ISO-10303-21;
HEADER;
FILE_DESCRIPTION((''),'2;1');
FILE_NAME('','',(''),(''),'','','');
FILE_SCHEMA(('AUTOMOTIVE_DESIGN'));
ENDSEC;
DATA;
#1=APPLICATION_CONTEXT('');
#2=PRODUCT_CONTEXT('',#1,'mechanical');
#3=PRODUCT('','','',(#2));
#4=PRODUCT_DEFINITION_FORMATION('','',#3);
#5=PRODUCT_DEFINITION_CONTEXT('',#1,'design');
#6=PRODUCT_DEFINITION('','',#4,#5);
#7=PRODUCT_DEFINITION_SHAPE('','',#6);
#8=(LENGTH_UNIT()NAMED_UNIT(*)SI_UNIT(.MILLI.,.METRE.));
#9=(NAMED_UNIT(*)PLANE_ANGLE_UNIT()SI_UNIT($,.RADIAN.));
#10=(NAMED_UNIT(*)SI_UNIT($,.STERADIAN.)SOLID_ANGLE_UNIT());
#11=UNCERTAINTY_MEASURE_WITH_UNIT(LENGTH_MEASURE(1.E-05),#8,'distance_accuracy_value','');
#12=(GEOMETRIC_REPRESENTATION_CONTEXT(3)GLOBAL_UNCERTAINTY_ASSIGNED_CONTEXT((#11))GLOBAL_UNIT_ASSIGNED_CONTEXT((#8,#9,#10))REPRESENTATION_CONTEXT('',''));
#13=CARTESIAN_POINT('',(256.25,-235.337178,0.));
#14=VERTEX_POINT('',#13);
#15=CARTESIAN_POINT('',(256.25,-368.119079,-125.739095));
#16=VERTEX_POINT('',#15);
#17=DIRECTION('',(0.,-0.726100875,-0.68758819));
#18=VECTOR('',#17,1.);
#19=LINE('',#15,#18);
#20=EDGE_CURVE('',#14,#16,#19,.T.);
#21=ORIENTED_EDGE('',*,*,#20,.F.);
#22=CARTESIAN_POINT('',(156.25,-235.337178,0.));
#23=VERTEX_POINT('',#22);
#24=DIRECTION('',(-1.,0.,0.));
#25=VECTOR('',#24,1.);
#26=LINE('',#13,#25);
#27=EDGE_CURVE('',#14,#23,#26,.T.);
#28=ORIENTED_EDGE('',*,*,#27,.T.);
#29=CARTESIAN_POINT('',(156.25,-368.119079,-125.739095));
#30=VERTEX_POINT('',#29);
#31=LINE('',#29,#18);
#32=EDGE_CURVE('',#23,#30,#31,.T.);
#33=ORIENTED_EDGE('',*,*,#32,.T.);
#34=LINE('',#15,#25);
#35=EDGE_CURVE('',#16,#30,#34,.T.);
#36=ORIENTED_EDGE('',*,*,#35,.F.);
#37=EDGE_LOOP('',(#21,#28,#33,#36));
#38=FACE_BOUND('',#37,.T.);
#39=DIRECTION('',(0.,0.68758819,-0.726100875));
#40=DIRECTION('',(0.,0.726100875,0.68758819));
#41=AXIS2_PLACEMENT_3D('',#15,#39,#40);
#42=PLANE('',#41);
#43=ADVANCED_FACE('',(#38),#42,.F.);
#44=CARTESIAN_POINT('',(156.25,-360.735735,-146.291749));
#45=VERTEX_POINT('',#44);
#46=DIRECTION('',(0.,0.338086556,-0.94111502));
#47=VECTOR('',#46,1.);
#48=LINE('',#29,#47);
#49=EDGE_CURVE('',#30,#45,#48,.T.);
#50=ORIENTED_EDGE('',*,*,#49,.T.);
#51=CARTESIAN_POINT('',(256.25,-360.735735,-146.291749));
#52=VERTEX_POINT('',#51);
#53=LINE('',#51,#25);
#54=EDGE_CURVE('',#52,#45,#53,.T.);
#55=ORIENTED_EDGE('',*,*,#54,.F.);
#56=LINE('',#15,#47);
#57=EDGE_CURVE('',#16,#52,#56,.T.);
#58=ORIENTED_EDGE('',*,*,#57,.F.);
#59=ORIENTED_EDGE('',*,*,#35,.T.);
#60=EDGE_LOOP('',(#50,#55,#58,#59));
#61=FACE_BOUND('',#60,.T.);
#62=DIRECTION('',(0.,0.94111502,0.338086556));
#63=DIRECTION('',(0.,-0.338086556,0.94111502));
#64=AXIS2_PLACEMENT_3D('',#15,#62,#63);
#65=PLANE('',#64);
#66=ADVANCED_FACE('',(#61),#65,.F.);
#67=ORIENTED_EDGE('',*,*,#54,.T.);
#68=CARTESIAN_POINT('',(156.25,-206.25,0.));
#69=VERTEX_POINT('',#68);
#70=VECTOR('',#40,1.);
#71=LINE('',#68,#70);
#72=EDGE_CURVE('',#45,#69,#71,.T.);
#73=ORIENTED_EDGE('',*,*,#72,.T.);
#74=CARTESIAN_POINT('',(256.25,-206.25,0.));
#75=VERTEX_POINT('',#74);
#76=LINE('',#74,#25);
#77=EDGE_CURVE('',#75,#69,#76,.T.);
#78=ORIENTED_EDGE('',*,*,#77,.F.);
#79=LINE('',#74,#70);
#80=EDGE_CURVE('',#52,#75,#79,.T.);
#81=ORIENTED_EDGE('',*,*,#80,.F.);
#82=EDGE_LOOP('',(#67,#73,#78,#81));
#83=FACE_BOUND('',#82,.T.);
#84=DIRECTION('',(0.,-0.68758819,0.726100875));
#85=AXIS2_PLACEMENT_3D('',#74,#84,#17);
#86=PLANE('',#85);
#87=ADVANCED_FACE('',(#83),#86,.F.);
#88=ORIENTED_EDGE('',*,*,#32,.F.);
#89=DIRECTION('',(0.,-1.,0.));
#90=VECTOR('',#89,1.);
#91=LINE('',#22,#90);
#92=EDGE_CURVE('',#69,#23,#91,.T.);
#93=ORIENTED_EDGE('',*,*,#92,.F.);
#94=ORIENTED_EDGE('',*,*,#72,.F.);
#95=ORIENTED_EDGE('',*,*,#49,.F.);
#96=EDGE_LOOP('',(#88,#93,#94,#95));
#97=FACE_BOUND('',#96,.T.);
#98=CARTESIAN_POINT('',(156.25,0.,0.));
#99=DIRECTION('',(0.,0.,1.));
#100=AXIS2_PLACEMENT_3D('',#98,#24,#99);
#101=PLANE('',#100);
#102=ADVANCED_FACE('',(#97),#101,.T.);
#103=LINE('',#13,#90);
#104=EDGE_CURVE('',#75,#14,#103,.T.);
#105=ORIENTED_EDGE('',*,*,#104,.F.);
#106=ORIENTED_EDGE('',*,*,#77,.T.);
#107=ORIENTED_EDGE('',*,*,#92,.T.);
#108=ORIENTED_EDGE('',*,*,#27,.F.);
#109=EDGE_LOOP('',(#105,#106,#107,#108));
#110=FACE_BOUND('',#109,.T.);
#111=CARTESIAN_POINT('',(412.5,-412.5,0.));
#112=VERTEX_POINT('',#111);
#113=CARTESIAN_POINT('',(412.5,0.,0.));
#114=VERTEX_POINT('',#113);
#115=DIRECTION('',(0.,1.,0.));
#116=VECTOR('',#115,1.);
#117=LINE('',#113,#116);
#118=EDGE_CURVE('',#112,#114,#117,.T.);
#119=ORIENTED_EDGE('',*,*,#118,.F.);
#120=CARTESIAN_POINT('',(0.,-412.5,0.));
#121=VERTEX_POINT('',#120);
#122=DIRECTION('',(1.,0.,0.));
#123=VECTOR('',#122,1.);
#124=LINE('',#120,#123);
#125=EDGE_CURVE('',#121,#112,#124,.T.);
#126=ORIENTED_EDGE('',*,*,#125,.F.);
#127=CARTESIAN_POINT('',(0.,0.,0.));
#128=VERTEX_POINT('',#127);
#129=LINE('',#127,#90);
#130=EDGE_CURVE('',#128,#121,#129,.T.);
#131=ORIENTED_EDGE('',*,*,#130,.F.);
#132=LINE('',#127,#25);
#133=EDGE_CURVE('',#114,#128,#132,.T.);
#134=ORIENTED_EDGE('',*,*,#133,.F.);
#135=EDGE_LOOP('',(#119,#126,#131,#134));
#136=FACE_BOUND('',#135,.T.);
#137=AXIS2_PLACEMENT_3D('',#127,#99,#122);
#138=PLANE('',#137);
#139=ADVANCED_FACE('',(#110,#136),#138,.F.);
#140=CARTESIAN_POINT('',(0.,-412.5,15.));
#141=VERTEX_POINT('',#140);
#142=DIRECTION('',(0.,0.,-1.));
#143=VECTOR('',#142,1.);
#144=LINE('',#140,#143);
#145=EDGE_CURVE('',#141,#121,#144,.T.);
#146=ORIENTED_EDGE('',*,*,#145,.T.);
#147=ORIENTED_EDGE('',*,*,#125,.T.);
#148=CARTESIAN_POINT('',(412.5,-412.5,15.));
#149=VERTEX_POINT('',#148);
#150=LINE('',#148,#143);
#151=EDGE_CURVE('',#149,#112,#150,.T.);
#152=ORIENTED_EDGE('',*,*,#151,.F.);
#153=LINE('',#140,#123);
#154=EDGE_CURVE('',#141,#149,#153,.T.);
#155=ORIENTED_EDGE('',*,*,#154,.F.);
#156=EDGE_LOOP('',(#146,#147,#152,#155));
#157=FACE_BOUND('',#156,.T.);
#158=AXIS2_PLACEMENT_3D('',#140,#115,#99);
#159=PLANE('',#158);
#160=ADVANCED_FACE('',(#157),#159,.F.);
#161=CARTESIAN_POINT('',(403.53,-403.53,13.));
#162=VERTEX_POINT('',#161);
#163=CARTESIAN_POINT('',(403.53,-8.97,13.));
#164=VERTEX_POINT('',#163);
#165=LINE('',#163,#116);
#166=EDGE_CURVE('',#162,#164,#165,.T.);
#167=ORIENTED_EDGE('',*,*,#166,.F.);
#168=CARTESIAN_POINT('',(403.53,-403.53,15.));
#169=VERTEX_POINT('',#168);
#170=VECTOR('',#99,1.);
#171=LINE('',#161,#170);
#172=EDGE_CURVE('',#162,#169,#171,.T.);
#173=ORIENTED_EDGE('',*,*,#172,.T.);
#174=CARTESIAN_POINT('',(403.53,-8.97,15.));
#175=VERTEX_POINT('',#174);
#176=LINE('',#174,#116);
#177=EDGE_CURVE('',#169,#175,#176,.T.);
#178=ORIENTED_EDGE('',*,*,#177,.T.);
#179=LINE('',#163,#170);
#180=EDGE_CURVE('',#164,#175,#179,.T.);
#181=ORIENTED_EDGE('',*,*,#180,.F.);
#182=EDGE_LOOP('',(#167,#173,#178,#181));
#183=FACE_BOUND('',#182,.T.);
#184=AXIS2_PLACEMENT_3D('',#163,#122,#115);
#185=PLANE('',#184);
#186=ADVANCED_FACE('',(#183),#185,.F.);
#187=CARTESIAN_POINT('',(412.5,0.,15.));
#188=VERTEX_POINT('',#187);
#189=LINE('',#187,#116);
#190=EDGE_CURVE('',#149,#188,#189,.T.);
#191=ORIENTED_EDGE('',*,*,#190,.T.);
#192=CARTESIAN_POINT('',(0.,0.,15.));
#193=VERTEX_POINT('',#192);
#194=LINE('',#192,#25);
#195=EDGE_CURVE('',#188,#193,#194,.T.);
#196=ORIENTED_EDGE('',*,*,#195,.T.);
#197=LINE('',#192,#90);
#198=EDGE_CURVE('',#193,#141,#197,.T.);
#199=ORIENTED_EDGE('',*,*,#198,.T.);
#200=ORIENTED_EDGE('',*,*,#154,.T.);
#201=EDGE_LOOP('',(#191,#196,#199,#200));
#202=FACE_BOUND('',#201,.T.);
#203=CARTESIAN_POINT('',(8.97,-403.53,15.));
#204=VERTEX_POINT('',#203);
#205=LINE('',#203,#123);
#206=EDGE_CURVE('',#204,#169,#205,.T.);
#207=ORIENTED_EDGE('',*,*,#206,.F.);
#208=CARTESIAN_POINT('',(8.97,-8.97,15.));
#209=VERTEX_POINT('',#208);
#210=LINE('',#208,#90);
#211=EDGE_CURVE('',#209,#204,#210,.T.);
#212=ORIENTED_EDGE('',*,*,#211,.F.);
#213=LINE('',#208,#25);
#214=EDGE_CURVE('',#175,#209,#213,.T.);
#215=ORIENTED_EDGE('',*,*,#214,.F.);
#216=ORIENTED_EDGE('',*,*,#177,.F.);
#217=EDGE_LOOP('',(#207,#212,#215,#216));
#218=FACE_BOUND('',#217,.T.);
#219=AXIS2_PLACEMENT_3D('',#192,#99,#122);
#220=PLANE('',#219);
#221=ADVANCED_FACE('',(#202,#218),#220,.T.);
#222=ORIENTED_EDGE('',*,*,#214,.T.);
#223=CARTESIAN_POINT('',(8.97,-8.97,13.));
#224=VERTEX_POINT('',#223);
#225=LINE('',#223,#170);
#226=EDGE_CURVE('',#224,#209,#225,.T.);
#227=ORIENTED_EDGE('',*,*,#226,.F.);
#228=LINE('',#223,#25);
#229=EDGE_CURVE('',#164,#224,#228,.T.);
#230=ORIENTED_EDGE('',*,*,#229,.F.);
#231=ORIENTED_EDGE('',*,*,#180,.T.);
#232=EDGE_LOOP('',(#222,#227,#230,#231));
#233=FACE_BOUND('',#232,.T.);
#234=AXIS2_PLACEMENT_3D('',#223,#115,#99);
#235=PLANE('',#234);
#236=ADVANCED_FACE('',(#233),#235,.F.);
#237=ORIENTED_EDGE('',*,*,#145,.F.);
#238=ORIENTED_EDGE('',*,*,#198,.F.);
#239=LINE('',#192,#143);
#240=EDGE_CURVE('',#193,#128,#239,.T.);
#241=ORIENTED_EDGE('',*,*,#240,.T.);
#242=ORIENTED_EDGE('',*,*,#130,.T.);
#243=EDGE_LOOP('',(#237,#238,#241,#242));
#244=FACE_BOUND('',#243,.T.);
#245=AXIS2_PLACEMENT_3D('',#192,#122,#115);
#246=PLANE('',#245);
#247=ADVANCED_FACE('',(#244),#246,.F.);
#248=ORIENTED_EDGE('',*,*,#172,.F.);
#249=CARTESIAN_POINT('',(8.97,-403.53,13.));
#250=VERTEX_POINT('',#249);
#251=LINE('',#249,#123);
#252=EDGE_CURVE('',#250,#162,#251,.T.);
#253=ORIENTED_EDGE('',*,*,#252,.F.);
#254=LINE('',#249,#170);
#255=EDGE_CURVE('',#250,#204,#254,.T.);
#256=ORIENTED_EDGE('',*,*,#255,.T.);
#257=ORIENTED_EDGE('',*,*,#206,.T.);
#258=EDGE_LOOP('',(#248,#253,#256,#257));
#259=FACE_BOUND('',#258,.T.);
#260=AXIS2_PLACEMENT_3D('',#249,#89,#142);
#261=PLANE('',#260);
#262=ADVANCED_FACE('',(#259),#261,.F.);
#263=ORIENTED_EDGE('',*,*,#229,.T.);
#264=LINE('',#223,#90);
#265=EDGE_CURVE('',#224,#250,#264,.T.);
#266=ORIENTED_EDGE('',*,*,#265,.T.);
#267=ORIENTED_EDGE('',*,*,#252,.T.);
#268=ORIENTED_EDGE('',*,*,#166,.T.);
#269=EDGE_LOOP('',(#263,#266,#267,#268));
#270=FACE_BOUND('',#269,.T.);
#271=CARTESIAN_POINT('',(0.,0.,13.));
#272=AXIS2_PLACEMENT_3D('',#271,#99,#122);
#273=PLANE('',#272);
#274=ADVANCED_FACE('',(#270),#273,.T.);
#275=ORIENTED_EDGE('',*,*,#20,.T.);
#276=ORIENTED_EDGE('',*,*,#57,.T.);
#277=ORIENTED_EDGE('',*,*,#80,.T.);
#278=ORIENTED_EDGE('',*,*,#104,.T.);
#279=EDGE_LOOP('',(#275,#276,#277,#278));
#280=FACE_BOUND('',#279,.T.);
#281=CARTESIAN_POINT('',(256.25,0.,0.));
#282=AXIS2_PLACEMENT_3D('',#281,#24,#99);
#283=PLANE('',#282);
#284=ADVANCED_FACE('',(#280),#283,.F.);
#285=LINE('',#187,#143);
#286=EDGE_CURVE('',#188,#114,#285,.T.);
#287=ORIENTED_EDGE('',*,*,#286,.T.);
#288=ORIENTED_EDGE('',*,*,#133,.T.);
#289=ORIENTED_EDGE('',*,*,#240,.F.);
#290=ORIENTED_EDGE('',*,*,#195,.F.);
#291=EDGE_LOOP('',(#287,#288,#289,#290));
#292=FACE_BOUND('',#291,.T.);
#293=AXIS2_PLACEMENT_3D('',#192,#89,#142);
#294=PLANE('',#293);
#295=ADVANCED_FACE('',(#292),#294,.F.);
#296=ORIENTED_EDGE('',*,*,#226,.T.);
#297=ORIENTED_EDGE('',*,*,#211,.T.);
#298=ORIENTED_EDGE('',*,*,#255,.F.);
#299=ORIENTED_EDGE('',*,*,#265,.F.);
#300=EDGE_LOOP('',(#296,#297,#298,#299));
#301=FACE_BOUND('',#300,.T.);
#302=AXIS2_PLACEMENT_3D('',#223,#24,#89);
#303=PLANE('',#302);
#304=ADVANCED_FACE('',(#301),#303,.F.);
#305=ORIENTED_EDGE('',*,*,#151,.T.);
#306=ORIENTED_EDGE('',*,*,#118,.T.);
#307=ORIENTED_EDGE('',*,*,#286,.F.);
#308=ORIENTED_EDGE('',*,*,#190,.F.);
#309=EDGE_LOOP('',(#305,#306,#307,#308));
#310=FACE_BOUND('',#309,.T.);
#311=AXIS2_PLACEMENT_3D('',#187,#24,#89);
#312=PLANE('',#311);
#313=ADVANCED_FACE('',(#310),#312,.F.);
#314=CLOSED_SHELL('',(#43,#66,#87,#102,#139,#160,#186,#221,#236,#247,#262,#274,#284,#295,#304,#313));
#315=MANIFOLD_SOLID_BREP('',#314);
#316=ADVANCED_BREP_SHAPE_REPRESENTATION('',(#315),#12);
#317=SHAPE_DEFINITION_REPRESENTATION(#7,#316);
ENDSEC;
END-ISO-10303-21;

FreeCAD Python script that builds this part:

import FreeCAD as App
import Part
import Sketcher

V = App.Vector


def add_polygon(sketch, points):
    """Adds a closed chain of lines whose ends are joined by coincident constraints."""
    first, n = sketch.GeometryCount, len(points)
    for a, b in zip(points, points[1:] + points[:1]):
        sketch.addGeometry(Part.LineSegment(App.Vector(*a, 0), App.Vector(*b, 0)), False)
    for i in range(n):
        sketch.addConstraint(Sketcher.Constraint("Coincident", first + i, 2, first + (i + 1) % n, 1))

doc = App.newDocument("Part")
params = doc.addObject("Spreadsheet::Sheet", "Params")
for row, (alias, value) in enumerate([
    ("sketch1_width", "412.5 mm"),
    ("pad1_length", "15 mm"),
    ("sketch2_width", "394.56 mm"),
    ("pocket1_length", "2 mm"),
    ("pad2_length", "100 mm"),
], start=1):
    params.set(f"A{row}", alias)
    params.set(f"B{row}", "=" + value)
    params.setAlias(f"B{row}", alias)

body = doc.addObject("PartDesign::Body", "Body")

# Sketch on XY plane
sketch1 = body.newObject("Sketcher::SketchObject", "Sketch")
sketch1.AttachmentSupport = (doc.getObject("XY_Plane"), [""])
sketch1.MapMode = "FlatFace"
add_polygon(sketch1, [(0, 0), (0, -412), (412, -412), (412, 0)])  # lines 0-3
sketch1.addConstraint([
    Sketcher.Constraint("Vertical", 0),
    Sketcher.Constraint("Horizontal", 1),
    Sketcher.Constraint("Vertical", 2),
    Sketcher.Constraint("Horizontal", 3),
    Sketcher.Constraint("Coincident", 3, 2, -1, 1),
    Sketcher.Constraint("Equal", 3, 0),
    Sketcher.Constraint("DistanceX", 1, 1, 1, 2, 412.5),
])
sketch1.setExpression("Constraints[10]", "Params.sketch1_width")
pad1 = body.newObject("PartDesign::Pad", "Pad")
pad1.Profile = sketch1
pad1.setExpression("Length", "Params.pad1_length")

# Sketch on XY plane
sketch2 = body.newObject("Sketcher::SketchObject", "Sketch001")
sketch2.AttachmentSupport = (doc.getObject("XY_Plane"), [""])
sketch2.MapMode = "FlatFace"
sketch2.AttachmentOffset = App.Placement(V(0, 0, 15), App.Rotation())
add_polygon(sketch2, [(9, -9), (9, -404), (404, -404), (404, -9)])  # lines 0-3
sketch2.addConstraint([
    Sketcher.Constraint("Vertical", 0),
    Sketcher.Constraint("Horizontal", 1),
    Sketcher.Constraint("Vertical", 2),
    Sketcher.Constraint("Horizontal", 3),
    Sketcher.Constraint("Equal", 3, 0),
    Sketcher.Constraint("DistanceX", 1, 1, 1, 2, 394.56),
    Sketcher.Constraint("DistanceX", -1, 1, 0, 2, 8.97),
    Sketcher.Constraint("DistanceY", 0, 2, -1, 1, 403.53),
])
sketch2.setExpression("Constraints[9]", "Params.sketch2_width")
pocket1 = body.newObject("PartDesign::Pocket", "Pocket")
pocket1.Profile = sketch2
pocket1.setExpression("Length", "Params.pocket1_length")

# Sketch on YZ plane
sketch3 = body.newObject("Sketcher::SketchObject", "Sketch002")
sketch3.AttachmentSupport = (doc.getObject("YZ_Plane"), [""])
sketch3.MapMode = "FlatFace"
sketch3.AttachmentOffset = App.Placement(V(0, 0, 156.25), App.Rotation())
add_polygon(sketch3, [(-361, -146), (-206, 0), (-235, 0), (-368, -126)])  # lines 0-3
sketch3.addConstraint([
    Sketcher.Constraint("Horizontal", 1),
    Sketcher.Constraint("PointOnObject", 0, 2, -1),
    Sketcher.Constraint("Parallel", 0, 2),
    Sketcher.Constraint("DistanceX", 0, 2, -1, 1, 206.25),
    Sketcher.Constraint("DistanceX", 2, 2, 1, 2, 132.781901),
    Sketcher.Constraint("Distance", 2, 182.869772),
    Sketcher.Constraint("Distance", 3, 21.83862),
    Sketcher.Constraint("DistanceX", 1, 2, 1, 1, 29.087178),
])
pad2 = body.newObject("PartDesign::Pad", "Pad001")
pad2.Profile = sketch3
pad2.setExpression("Length", "Params.pad2_length")

doc.recompute()
